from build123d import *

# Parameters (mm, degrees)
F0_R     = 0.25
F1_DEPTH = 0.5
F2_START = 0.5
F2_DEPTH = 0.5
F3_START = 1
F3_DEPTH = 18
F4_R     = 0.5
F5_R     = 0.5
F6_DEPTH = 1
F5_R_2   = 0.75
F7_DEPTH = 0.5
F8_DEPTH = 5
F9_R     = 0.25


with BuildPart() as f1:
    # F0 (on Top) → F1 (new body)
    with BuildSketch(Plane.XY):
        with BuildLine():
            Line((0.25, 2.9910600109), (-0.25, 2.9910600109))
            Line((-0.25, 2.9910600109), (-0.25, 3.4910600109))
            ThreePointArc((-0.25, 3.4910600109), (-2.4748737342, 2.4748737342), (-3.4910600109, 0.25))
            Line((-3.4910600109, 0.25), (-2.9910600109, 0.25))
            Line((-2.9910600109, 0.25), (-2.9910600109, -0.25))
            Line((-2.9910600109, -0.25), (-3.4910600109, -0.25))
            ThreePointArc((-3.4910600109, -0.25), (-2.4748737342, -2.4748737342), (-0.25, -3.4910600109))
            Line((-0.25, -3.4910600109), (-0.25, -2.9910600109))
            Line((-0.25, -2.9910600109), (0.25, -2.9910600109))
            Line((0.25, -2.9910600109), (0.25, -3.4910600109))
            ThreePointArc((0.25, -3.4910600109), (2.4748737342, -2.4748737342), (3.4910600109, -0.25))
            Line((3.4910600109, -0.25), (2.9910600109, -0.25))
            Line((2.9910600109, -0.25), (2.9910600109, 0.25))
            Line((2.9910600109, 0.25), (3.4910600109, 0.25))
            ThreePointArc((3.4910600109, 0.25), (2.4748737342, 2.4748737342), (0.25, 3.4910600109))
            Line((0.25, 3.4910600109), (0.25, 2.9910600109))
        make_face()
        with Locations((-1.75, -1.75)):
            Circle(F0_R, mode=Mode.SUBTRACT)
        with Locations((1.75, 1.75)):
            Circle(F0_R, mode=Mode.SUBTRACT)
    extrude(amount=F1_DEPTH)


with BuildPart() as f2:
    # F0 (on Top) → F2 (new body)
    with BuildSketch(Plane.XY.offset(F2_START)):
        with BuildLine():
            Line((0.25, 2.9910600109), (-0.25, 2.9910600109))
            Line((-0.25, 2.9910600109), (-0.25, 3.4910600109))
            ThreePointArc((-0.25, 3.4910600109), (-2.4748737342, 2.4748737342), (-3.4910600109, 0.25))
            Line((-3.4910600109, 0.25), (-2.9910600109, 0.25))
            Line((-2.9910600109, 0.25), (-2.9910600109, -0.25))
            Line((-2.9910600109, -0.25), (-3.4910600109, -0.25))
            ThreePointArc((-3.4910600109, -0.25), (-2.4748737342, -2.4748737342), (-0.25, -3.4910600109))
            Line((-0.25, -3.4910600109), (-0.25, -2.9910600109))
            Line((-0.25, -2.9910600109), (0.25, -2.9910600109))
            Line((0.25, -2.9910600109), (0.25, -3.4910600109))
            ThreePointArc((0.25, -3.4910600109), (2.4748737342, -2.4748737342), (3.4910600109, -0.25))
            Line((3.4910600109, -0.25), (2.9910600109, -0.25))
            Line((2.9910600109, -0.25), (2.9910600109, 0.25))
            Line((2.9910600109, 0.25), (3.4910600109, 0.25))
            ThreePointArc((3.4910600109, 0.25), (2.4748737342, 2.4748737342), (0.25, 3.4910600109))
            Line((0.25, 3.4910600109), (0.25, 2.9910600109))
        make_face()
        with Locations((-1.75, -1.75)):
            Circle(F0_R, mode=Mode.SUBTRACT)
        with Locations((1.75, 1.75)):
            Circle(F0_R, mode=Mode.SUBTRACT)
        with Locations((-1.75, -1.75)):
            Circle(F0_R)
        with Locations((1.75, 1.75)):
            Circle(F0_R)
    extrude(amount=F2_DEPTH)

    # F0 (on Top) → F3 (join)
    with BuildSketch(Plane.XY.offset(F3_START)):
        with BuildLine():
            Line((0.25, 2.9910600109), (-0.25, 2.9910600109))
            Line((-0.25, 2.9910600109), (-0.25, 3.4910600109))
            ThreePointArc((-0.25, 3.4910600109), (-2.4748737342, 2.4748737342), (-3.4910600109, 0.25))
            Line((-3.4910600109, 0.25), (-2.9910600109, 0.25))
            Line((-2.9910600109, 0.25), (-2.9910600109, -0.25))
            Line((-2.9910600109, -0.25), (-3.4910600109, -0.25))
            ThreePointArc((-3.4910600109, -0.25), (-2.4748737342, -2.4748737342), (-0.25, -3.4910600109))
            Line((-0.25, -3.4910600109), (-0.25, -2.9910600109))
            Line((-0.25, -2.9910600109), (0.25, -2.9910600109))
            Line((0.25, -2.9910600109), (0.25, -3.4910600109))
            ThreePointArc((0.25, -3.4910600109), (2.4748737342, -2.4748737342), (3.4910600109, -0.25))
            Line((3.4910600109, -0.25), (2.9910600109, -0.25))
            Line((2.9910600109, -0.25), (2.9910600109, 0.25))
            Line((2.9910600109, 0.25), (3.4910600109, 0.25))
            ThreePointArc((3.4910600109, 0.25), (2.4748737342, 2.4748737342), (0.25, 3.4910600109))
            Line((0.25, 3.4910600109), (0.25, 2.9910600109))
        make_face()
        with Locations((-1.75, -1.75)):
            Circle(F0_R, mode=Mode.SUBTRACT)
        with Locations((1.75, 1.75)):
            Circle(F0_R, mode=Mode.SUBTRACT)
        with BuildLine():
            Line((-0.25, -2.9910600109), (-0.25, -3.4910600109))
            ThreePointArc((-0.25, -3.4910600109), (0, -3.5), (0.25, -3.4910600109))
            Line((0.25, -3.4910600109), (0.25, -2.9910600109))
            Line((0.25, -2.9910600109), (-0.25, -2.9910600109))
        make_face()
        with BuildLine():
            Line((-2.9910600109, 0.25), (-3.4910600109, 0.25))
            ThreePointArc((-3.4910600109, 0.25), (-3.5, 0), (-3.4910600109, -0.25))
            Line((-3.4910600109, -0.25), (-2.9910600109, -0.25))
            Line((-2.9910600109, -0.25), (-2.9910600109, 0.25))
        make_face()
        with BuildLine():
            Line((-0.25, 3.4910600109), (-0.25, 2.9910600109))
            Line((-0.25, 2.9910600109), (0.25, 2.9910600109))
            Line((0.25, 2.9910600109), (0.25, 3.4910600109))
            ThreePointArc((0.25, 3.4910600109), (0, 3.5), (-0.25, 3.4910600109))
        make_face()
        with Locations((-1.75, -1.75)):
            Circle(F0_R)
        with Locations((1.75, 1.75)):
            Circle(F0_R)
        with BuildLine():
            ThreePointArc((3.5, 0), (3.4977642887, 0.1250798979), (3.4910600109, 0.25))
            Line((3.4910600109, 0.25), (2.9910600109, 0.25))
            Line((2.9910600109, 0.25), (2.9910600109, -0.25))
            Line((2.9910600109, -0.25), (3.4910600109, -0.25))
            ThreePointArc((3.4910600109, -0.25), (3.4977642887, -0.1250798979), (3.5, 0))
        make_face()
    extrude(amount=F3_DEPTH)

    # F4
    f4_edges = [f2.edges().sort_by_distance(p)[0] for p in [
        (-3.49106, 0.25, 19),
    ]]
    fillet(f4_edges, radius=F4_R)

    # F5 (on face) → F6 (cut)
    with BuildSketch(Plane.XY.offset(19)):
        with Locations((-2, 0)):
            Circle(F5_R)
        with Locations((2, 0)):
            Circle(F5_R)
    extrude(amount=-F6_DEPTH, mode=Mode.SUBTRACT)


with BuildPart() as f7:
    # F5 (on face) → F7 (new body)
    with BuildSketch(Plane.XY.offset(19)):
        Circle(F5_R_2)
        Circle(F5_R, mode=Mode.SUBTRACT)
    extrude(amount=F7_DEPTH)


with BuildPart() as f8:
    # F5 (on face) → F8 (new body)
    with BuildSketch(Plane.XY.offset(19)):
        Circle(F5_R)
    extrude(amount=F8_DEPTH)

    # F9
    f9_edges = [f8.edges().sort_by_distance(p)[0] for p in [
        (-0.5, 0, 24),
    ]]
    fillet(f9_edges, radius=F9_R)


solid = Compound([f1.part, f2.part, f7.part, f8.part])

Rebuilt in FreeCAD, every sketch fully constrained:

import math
import FreeCAD as App
import Part
import Sketcher
from FreeCAD import Vector
Q = App.Units.Quantity


def edges_at(feature, points):
    """Names of the edges that pass closest to the given points."""
    edges = feature.Shape.Edges
    near = lambda p: min(range(len(edges)), key=lambda i: edges[i].distToShape(Part.Vertex(*p))[0])
    return sorted({f"Edge{near(p) + 1}" for p in points})

doc = App.newDocument("Part")
body = doc.addObject("PartDesign::Body", "Body")

# Sketch on XY plane
sketch1 = body.newObject("Sketcher::SketchObject", "Sketch")
sketch1.AttachmentSupport = (doc.getObject("XY_Plane"), [""])
sketch1.MapMode = "FlatFace"
sketch1.addGeometry([
    Part.LineSegment(Vector(0.25, 2.99, 0), Vector(-0.25, 2.99, 0)),  # 0
    Part.LineSegment(Vector(-0.25, 2.99, 0), Vector(-0.25, 3.49, 0)),  # 1
    Part.ArcOfCircle(Part.Circle(Vector(0, 0, 0), Vector(0, 0, 1), 3.5), math.radians(94), math.radians(176)),  # 2
    Part.LineSegment(Vector(-3.49, 0.25, 0), Vector(-2.99, 0.25, 0)),  # 3
    Part.LineSegment(Vector(-2.99, 0.25, 0), Vector(-2.99, -0.25, 0)),  # 4
    Part.LineSegment(Vector(-2.99, -0.25, 0), Vector(-3.49, -0.25, 0)),  # 5
    Part.ArcOfCircle(Part.Circle(Vector(0, 0, 0), Vector(0, 0, 1), 3.5), math.radians(-176), math.radians(-94)),  # 6
    Part.LineSegment(Vector(-0.25, -3.49, 0), Vector(-0.25, -2.99, 0)),  # 7
    Part.LineSegment(Vector(-0.25, -2.99, 0), Vector(0.25, -2.99, 0)),  # 8
    Part.LineSegment(Vector(0.25, -2.99, 0), Vector(0.25, -3.49, 0)),  # 9
    Part.ArcOfCircle(Part.Circle(Vector(0, 0, 0), Vector(0, 0, 1), 3.5), math.radians(-86), math.radians(-4)),  # 10
    Part.LineSegment(Vector(3.49, -0.25, 0), Vector(2.99, -0.25, 0)),  # 11
    Part.LineSegment(Vector(2.99, -0.25, 0), Vector(2.99, 0.25, 0)),  # 12
    Part.LineSegment(Vector(2.99, 0.25, 0), Vector(3.49, 0.25, 0)),  # 13
    Part.ArcOfCircle(Part.Circle(Vector(0, 0, 0), Vector(0, 0, 1), 3.5), math.radians(4), math.radians(86)),  # 14
    Part.LineSegment(Vector(0.25, 3.49, 0), Vector(0.25, 2.99, 0)),  # 15
    Part.Circle(Vector(-1.75, -1.75, 0), Vector(0, 0, 1), 0.25),  # 16
    Part.Circle(Vector(1.75, 1.75, 0), Vector(0, 0, 1), 0.25),  # 17
], False)
sketch1.addConstraint([
    Sketcher.Constraint("Coincident", 0, 2, 1, 1),
    Sketcher.Constraint("Coincident", 1, 2, 2, 1),
    Sketcher.Constraint("Coincident", 2, 2, 3, 1),
    Sketcher.Constraint("Coincident", 3, 2, 4, 1),
    Sketcher.Constraint("Coincident", 4, 2, 5, 1),
    Sketcher.Constraint("Coincident", 5, 2, 6, 1),
    Sketcher.Constraint("Coincident", 6, 2, 7, 1),
    Sketcher.Constraint("Coincident", 7, 2, 8, 1),
    Sketcher.Constraint("Coincident", 8, 2, 9, 1),
    Sketcher.Constraint("Coincident", 9, 2, 10, 1),
    Sketcher.Constraint("Coincident", 10, 2, 11, 1),
    Sketcher.Constraint("Coincident", 11, 2, 12, 1),
    Sketcher.Constraint("Coincident", 12, 2, 13, 1),
    Sketcher.Constraint("Coincident", 13, 2, 14, 1),
    Sketcher.Constraint("Coincident", 14, 2, 15, 1),
    Sketcher.Constraint("Coincident", 15, 2, 0, 1),
    Sketcher.Constraint("Horizontal", 0),
    Sketcher.Constraint("Vertical", 1),
    Sketcher.Constraint("Horizontal", 3),
    Sketcher.Constraint("Vertical", 4),
    Sketcher.Constraint("Horizontal", 5),
    Sketcher.Constraint("Vertical", 7),
    Sketcher.Constraint("Horizontal", 8),
    Sketcher.Constraint("Vertical", 9),
    Sketcher.Constraint("Horizontal", 11),
    Sketcher.Constraint("Vertical", 12),
    Sketcher.Constraint("Horizontal", 13),
    Sketcher.Constraint("Vertical", 15),
    Sketcher.Constraint("Coincident", 2, 3, -1, 1),
    Sketcher.Constraint("Coincident", 6, 3, -1, 1),
    Sketcher.Constraint("Coincident", 10, 3, -1, 1),
    Sketcher.Constraint("Coincident", 14, 3, -1, 1),
    Sketcher.Constraint("Equal", 2, 6),
    Sketcher.Constraint("Equal", 6, 10),
    Sketcher.Constraint("Equal", 10, 14),
    Sketcher.Constraint("Equal", 16, 17),
    Sketcher.Constraint("Symmetric", 16, 3, 17, 3, -1, 1),
    Sketcher.Constraint("Symmetric", 0, 2, 8, 2, -1, 1),
    Sketcher.Constraint("Symmetric", 3, 2, 11, 2, -1, 1),
    Sketcher.Constraint("Horizontal", 6, 2, 9, 2),
    Sketcher.Constraint("Horizontal", 5, 2, 10, 2),
    Sketcher.Constraint("Horizontal", 3, 2, 12, 2),
    Sketcher.Constraint("Horizontal", 1, 2, 14, 2),
    Sketcher.Constraint("Equal", 0, 3),
    Sketcher.Constraint("Equal", 13, 1),
    Sketcher.Constraint("Equal", 1, 4),
    Sketcher.Constraint("Diameter", 16, Q("0.5 mm")),
    Sketcher.Constraint("Radius", 2, Q("3.5 mm")),
    Sketcher.Constraint("DistanceX", 0, 2, 0, 1, Q("0.5 mm")),
    Sketcher.Constraint("DistanceX", 0, 2, 17, 3, Q("2 mm")),
    Sketcher.Constraint("DistanceY", 16, 3, 2, 2, Q("2 mm")),
])
pad1 = body.newObject("PartDesign::Pad", "Pad")
pad1.Profile = sketch1
pad1.Length = 0.5
body2 = doc.addObject("PartDesign::Body", "Body001")

# Sketch on XY plane
sketch2 = body2.newObject("Sketcher::SketchObject", "Sketch001")
sketch2.AttachmentSupport = (doc.getObject("XY_Plane001"), [""])
sketch2.MapMode = "FlatFace"
sketch2.AttachmentOffset = App.Placement(Vector(0, 0, 0.5), App.Rotation())
sketch2.addGeometry([
    Part.LineSegment(Vector(0.2, 3, 0), Vector(-0.2, 3, 0)),  # 0
    Part.LineSegment(Vector(-0.2, 3, 0), Vector(-0.2, 3.5, 0)),  # 1
    Part.ArcOfCircle(Part.Circle(Vector(0, 0, 0), Vector(0, 0, 1), 3.5), math.radians(94), math.radians(176)),  # 2
    Part.LineSegment(Vector(-3.5, 0.2, 0), Vector(-3, 0.2, 0)),  # 3
    Part.LineSegment(Vector(-3, 0.2, 0), Vector(-3, -0.2, 0)),  # 4
    Part.LineSegment(Vector(-3, -0.2, 0), Vector(-3.5, -0.2, 0)),  # 5
    Part.ArcOfCircle(Part.Circle(Vector(0, 0, 0), Vector(0, 0, 1), 3.5), math.radians(-176), math.radians(-94)),  # 6
    Part.LineSegment(Vector(-0.2, -3.5, 0), Vector(-0.2, -3, 0)),  # 7
    Part.LineSegment(Vector(-0.2, -3, 0), Vector(0.2, -3, 0)),  # 8
    Part.LineSegment(Vector(0.2, -3, 0), Vector(0.2, -3.5, 0)),  # 9
    Part.ArcOfCircle(Part.Circle(Vector(0, 0, 0), Vector(0, 0, 1), 3.5), math.radians(-86), math.radians(-4)),  # 10
    Part.LineSegment(Vector(3.5, -0.2, 0), Vector(3, -0.2, 0)),  # 11
    Part.LineSegment(Vector(3, -0.2, 0), Vector(3, 0.2, 0)),  # 12
    Part.LineSegment(Vector(3, 0.2, 0), Vector(3.5, 0.2, 0)),  # 13
    Part.ArcOfCircle(Part.Circle(Vector(0, 0, 0), Vector(0, 0, 1), 3.5), math.radians(4), math.radians(86)),  # 14
    Part.LineSegment(Vector(0.2, 3.5, 0), Vector(0.2, 3, 0)),  # 15
], False)
sketch2.addConstraint([
    Sketcher.Constraint("Coincident", 0, 2, 1, 1),
    Sketcher.Constraint("Coincident", 1, 2, 2, 1),
    Sketcher.Constraint("Coincident", 2, 2, 3, 1),
    Sketcher.Constraint("Coincident", 3, 2, 4, 1),
    Sketcher.Constraint("Coincident", 4, 2, 5, 1),
    Sketcher.Constraint("Coincident", 5, 2, 6, 1),
    Sketcher.Constraint("Coincident", 6, 2, 7, 1),
    Sketcher.Constraint("Coincident", 7, 2, 8, 1),
    Sketcher.Constraint("Coincident", 8, 2, 9, 1),
    Sketcher.Constraint("Coincident", 9, 2, 10, 1),
    Sketcher.Constraint("Coincident", 10, 2, 11, 1),
    Sketcher.Constraint("Coincident", 11, 2, 12, 1),
    Sketcher.Constraint("Coincident", 12, 2, 13, 1),
    Sketcher.Constraint("Coincident", 13, 2, 14, 1),
    Sketcher.Constraint("Coincident", 14, 2, 15, 1),
    Sketcher.Constraint("Coincident", 15, 2, 0, 1),
    Sketcher.Constraint("Horizontal", 0),
    Sketcher.Constraint("Vertical", 1),
    Sketcher.Constraint("Horizontal", 3),
    Sketcher.Constraint("Vertical", 4),
    Sketcher.Constraint("Horizontal", 5),
    Sketcher.Constraint("Vertical", 7),
    Sketcher.Constraint("Horizontal", 8),
    Sketcher.Constraint("Vertical", 9),
    Sketcher.Constraint("Horizontal", 11),
    Sketcher.Constraint("Vertical", 12),
    Sketcher.Constraint("Horizontal", 13),
    Sketcher.Constraint("Vertical", 15),
    Sketcher.Constraint("Coincident", 2, 3, -1, 1),
    Sketcher.Constraint("Coincident", 6, 3, -1, 1),
    Sketcher.Constraint("Coincident", 10, 3, -1, 1),
    Sketcher.Constraint("Coincident", 14, 3, -1, 1),
    Sketcher.Constraint("Equal", 2, 6),
    Sketcher.Constraint("Equal", 6, 10),
    Sketcher.Constraint("Equal", 10, 14),
    Sketcher.Constraint("Symmetric", 0, 2, 8, 2, -1, 1),
    Sketcher.Constraint("Symmetric", 3, 2, 11, 2, -1, 1),
    Sketcher.Constraint("Horizontal", 6, 2, 9, 2),
    Sketcher.Constraint("Horizontal", 5, 2, 10, 2),
    Sketcher.Constraint("Horizontal", 3, 2, 12, 2),
    Sketcher.Constraint("Horizontal", 1, 2, 14, 2),
    Sketcher.Constraint("Equal", 0, 3),
    Sketcher.Constraint("Equal", 13, 1),
    Sketcher.Constraint("Equal", 1, 4),
    Sketcher.Constraint("Radius", 2, Q("3.5 mm")),
    Sketcher.Constraint("DistanceX", 0, 2, 0, 1, Q("0.5 mm")),
])
pad2 = body2.newObject("PartDesign::Pad", "Pad001")
pad2.Profile = sketch2
pad2.Length = 0.5

# Sketch on XY plane
sketch3 = body2.newObject("Sketcher::SketchObject", "Sketch002")
sketch3.AttachmentSupport = (doc.getObject("XY_Plane001"), [""])
sketch3.MapMode = "FlatFace"
sketch3.AttachmentOffset = App.Placement(Vector(0, 0, 1), App.Rotation())
sketch3.addGeometry([
    Part.ArcOfCircle(Part.Circle(Vector(0, 0, 0), Vector(0, 0, 1), 3.5), math.radians(94), math.radians(176)),  # 0
    Part.ArcOfCircle(Part.Circle(Vector(0, 0, 0), Vector(0, 0, 1), 3.5), math.radians(175.9), math.radians(184.1)),  # 1
    Part.ArcOfCircle(Part.Circle(Vector(0, 0, 0), Vector(0, 0, 1), 3.5), math.radians(-176), math.radians(-94)),  # 2
    Part.ArcOfCircle(Part.Circle(Vector(0, 0, 0), Vector(0, 0, 1), 3.5), math.radians(-94.1), math.radians(-85.9)),  # 3
    Part.ArcOfCircle(Part.Circle(Vector(0, 0, 0), Vector(0, 0, 1), 3.5), math.radians(-86), math.radians(-4)),  # 4
    Part.ArcOfCircle(Part.Circle(Vector(0, 0, 0), Vector(0, 0, 1), 3.5), math.radians(-4.1), math.radians(0)),  # 5
    Part.ArcOfCircle(Part.Circle(Vector(0, 0, 0), Vector(0, 0, 1), 3.5), math.radians(0), math.radians(4.1)),  # 6
    Part.ArcOfCircle(Part.Circle(Vector(0, 0, 0), Vector(0, 0, 1), 3.5), math.radians(4), math.radians(86)),  # 7
    Part.ArcOfCircle(Part.Circle(Vector(0, 0, 0), Vector(0, 0, 1), 3.5), math.radians(85.9), math.radians(94.1)),  # 8
], False)
sketch3.addConstraint([
    Sketcher.Constraint("Tangent", 0, 2, 1, 1),
    Sketcher.Constraint("Tangent", 1, 2, 2, 1),
    Sketcher.Constraint("Tangent", 2, 2, 3, 1),
    Sketcher.Constraint("Tangent", 3, 2, 4, 1),
    Sketcher.Constraint("Tangent", 4, 2, 5, 1),
    Sketcher.Constraint("Tangent", 5, 2, 6, 1),
    Sketcher.Constraint("Tangent", 6, 2, 7, 1),
    Sketcher.Constraint("Tangent", 7, 2, 8, 1),
    Sketcher.Constraint("Tangent", 8, 2, 0, 1),
    Sketcher.Constraint("Coincident", 0, 3, -1, 1),
    Sketcher.Constraint("Coincident", 2, 3, -1, 1),
    Sketcher.Constraint("Coincident", 4, 3, -1, 1),
    Sketcher.Constraint("Coincident", 6, 3, -1, 1),
    Sketcher.Constraint("PointOnObject", 5, 2, -1),
    Sketcher.Constraint("Horizontal", 2, 2, 3, 2),
    Sketcher.Constraint("Horizontal", 1, 2, 4, 2),
    Sketcher.Constraint("Horizontal", 0, 2, 6, 2),
    Sketcher.Constraint("Horizontal", 7, 2, 8, 2),
    Sketcher.Constraint("Vertical", 0, 2, 1, 2),
    Sketcher.Constraint("Vertical", 3, 2, 7, 2),
    Sketcher.Constraint("Radius", 0, Q("3.5 mm")),
    Sketcher.Constraint("DistanceY", 1, 2, 0, 2, Q("0.5 mm")),
    Sketcher.Constraint("DistanceX", 2, 2, 3, 2, Q("0.5 mm")),
])
pad3 = body2.newObject("PartDesign::Pad", "Pad002")
pad3.Profile = sketch3
pad3.Length = 18
doc.recompute()

fillet = body2.newObject("PartDesign::Fillet", "Fillet")
fillet.Base = (pad3, edges_at(pad3, [(-2.475, 2.475, 19)]))
fillet.Radius = 0.5

# Sketch on XY plane
sketch4 = body2.newObject("Sketcher::SketchObject", "Sketch003")
sketch4.AttachmentSupport = (doc.getObject("XY_Plane001"), [""])
sketch4.MapMode = "FlatFace"
sketch4.AttachmentOffset = App.Placement(Vector(0, 0, 19), App.Rotation())
sketch4.addGeometry([
    Part.Circle(Vector(-2, 0, 0), Vector(0, 0, 1), 0.5),
    Part.Circle(Vector(2, 0, 0), Vector(0, 0, 1), 0.5),
], False)
sketch4.addConstraint([
    Sketcher.Constraint("Equal", 0, 1),
    Sketcher.Constraint("Symmetric", 0, 3, 1, 3, -1, 1),
    Sketcher.Constraint("PointOnObject", 0, 3, -1),
    Sketcher.Constraint("Diameter", 0, Q("1 mm")),
    Sketcher.Constraint("DistanceX", 0, 3, -1, 1, Q("2 mm")),
])
pocket1 = body2.newObject("PartDesign::Pocket", "Pocket")
pocket1.Profile = sketch4
pocket1.Length = 1
body3 = doc.addObject("PartDesign::Body", "Body002")

# Sketch on XY plane
sketch5 = body3.newObject("Sketcher::SketchObject", "Sketch004")
sketch5.AttachmentSupport = (doc.getObject("XY_Plane002"), [""])
sketch5.MapMode = "FlatFace"
sketch5.AttachmentOffset = App.Placement(Vector(0, 0, 19), App.Rotation())
sketch5.addGeometry([
    Part.Circle(Vector(0, 0, 0), Vector(0, 0, 1), 0.8),
    Part.Circle(Vector(0, 0, 0), Vector(0, 0, 1), 0.5),
], False)
sketch5.addConstraint([
    Sketcher.Constraint("Coincident", 0, 3, -1, 1),
    Sketcher.Constraint("Coincident", 1, 3, -1, 1),
    Sketcher.Constraint("Diameter", 1, Q("1 mm")),
    Sketcher.Constraint("Diameter", 0, Q("1.5 mm")),
])
pad4 = body3.newObject("PartDesign::Pad", "Pad003")
pad4.Profile = sketch5
pad4.Length = 0.5
body4 = doc.addObject("PartDesign::Body", "Body003")

# Sketch on XY plane
sketch6 = body4.newObject("Sketcher::SketchObject", "Sketch005")
sketch6.AttachmentSupport = (doc.getObject("XY_Plane003"), [""])
sketch6.MapMode = "FlatFace"
sketch6.AttachmentOffset = App.Placement(Vector(0, 0, 19), App.Rotation())
sketch6.addGeometry(Part.Circle(Vector(0, 0, 0), Vector(0, 0, 1), 0.5), False)
sketch6.addConstraint([
    Sketcher.Constraint("Coincident", 0, 3, -1, 1),
    Sketcher.Constraint("Diameter", 0, Q("1 mm")),
])
pad5 = body4.newObject("PartDesign::Pad", "Pad004")
pad5.Profile = sketch6
pad5.Length = 5
doc.recompute()

fillet2 = body4.newObject("PartDesign::Fillet", "Fillet001")
fillet2.Base = (pad5, edges_at(pad5, [(-0.5, 0, 24)]))
fillet2.Radius = 0.25

doc.recompute()
